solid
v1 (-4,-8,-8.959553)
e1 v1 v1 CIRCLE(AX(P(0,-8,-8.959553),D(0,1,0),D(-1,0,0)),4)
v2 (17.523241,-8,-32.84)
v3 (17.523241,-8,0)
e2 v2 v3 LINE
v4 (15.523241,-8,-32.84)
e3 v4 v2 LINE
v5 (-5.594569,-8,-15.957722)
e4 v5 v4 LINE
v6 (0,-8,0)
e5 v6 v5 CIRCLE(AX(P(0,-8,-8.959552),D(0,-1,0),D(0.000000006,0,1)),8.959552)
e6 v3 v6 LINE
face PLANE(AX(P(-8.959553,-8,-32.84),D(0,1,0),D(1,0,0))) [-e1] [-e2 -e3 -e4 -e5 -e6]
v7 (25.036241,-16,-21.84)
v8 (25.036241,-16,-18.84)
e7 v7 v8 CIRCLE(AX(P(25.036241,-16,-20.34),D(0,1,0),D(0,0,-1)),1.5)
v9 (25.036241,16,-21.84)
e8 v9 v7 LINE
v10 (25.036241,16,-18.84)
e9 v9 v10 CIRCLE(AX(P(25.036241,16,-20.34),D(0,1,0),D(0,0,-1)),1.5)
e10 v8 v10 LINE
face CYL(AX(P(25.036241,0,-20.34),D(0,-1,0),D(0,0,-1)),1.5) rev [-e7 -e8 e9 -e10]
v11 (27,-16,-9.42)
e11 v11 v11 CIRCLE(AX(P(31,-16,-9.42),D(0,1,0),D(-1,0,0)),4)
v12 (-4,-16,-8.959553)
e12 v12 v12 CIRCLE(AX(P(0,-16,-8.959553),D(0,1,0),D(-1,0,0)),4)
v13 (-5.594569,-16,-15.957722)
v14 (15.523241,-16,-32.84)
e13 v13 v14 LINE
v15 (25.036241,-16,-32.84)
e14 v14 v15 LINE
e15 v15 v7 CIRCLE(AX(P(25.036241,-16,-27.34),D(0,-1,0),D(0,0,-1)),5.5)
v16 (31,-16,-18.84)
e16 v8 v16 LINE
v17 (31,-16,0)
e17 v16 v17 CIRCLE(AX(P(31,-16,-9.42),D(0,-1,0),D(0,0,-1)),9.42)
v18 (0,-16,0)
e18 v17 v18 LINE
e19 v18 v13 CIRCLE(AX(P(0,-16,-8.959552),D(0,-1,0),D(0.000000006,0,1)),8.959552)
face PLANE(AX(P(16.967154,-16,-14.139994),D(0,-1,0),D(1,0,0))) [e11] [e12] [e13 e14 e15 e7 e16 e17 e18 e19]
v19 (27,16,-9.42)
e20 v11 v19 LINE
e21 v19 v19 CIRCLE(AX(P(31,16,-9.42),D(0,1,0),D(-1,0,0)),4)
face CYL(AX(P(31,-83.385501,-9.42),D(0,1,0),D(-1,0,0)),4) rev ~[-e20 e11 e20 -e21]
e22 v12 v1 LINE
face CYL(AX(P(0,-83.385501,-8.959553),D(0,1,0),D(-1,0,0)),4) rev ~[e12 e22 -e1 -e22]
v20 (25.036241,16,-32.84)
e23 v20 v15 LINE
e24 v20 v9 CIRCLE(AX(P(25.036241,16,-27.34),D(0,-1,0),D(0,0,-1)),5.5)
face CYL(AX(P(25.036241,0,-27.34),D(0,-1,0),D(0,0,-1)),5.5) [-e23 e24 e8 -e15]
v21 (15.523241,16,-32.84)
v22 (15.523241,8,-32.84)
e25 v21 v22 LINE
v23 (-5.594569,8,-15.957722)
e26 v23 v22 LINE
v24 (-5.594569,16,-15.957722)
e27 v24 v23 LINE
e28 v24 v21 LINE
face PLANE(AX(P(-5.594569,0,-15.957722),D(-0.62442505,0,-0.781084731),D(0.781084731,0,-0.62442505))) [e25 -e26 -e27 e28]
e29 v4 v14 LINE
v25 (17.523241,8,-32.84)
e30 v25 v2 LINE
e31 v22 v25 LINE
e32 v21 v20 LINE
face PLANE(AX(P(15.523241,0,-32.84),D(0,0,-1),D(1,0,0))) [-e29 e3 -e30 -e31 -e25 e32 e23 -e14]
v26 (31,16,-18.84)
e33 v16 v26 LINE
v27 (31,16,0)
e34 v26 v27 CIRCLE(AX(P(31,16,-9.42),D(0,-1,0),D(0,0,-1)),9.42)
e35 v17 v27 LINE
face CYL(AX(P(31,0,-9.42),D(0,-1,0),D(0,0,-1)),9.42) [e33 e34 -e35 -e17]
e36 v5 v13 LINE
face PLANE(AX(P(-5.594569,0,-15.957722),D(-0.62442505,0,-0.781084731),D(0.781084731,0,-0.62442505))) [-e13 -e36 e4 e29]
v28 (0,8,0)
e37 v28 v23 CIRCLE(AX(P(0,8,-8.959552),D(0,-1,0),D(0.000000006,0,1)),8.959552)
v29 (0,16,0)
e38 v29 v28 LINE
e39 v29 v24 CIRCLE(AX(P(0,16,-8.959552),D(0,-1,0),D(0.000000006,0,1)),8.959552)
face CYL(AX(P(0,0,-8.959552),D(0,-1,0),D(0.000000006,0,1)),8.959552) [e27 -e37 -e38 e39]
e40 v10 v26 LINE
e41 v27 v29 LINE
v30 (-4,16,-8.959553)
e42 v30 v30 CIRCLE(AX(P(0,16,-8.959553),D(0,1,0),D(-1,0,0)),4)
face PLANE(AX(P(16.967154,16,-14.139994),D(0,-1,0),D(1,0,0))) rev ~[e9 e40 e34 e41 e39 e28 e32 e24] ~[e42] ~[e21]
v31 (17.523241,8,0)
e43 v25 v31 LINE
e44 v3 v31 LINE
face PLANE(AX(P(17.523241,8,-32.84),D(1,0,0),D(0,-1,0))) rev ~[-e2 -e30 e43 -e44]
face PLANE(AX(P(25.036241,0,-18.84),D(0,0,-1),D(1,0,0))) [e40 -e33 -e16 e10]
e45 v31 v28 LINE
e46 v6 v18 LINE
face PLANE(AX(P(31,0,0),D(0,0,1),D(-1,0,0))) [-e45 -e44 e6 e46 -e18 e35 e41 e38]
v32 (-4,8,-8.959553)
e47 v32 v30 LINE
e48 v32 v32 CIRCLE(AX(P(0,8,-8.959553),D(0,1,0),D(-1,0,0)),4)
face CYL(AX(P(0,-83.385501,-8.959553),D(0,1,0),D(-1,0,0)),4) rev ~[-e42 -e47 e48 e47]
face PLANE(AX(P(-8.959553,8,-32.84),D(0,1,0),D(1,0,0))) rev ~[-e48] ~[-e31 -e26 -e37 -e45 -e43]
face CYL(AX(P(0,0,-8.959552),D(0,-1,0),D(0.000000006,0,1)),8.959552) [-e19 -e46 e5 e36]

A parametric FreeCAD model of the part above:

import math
import FreeCAD as App
import Part
import Sketcher
Q = App.Units.Quantity

doc = App.newDocument("Part")
body = doc.addObject("PartDesign::Body", "Body")

# Sketch on XZ plane
sketch1 = body.newObject("Sketcher::SketchObject", "Sketch")
sketch1.AttachmentSupport = (doc.getObject("XZ_Plane"), [""])
sketch1.MapMode = "FlatFace"
sketch1.addGeometry([
    Part.LineSegment(App.Vector(31, 0, 0), App.Vector(0, 0, 0)),  # 0
    Part.ArcOfCircle(Part.Circle(App.Vector(0, -8.959552, 0), App.Vector(0, 0, 1), 8.959552), math.radians(90), math.radians(231.36)),  # 1
    Part.LineSegment(App.Vector(-5.594569, -15.957722, 0), App.Vector(15.523241, -32.84, 0)),  # 2
    Part.LineSegment(App.Vector(15.523241, -32.84, 0), App.Vector(25.036241, -32.84, 0)),  # 3
    Part.ArcOfCircle(Part.Circle(App.Vector(25.036241, -27.34, 0), App.Vector(0, 0, 1), 5.5), math.radians(-90), math.radians(90)),  # 4
    Part.ArcOfCircle(Part.Circle(App.Vector(25.036241, -20.34, 0), App.Vector(0, 0, 1), 1.5), math.radians(90), math.radians(270)),  # 5
    Part.LineSegment(App.Vector(25.036241, -18.84, 0), App.Vector(31, -18.84, 0)),  # 6
    Part.ArcOfCircle(Part.Circle(App.Vector(31, -9.42, 0), App.Vector(0, 0, 1), 9.42), math.radians(-90), math.radians(90)),  # 7
], False)
sketch1.addConstraint([
    Sketcher.Constraint("Tangent", 0, 2, 1, 1),
    Sketcher.Constraint("Tangent", 1, 2, 2, 1),
    Sketcher.Constraint("Coincident", 2, 2, 3, 1),
    Sketcher.Constraint("Tangent", 3, 2, 4, 1),
    Sketcher.Constraint("Tangent", 4, 2, 5, 2),
    Sketcher.Constraint("Tangent", 5, 1, 6, 1),
    Sketcher.Constraint("Tangent", 6, 2, 7, 1),
    Sketcher.Constraint("Tangent", 7, 2, 0, 1),
    Sketcher.Constraint("Horizontal", 0),
    Sketcher.Constraint("Horizontal", 3),
    Sketcher.Constraint("Horizontal", 6),
    Sketcher.Constraint("Coincident", 0, 2, -1, 1),
    Sketcher.Constraint("Vertical", 4, 3, 5, 3),
    Sketcher.Constraint("Radius", 4, Q("5.5 mm")),
    Sketcher.Constraint("Radius", 5, Q("1.5 mm")),
    Sketcher.Constraint("DistanceX", 0, 2, 0, 1, Q("31 mm")),
    Sketcher.Constraint("Radius", 7, Q("9.42 mm")),
    Sketcher.Constraint("Angle", 2, Q("-38.64 deg")),
    Sketcher.Constraint("DistanceX", 3, 1, 3, 2, Q("9.513 mm")),
    Sketcher.Constraint("Radius", 1, Q("8.959552 mm")),
])
pad1 = body.newObject("PartDesign::Pad", "Pad")
pad1.Profile = sketch1
pad1.Length = 32
pad1.Midplane = True

# Sketch on XY plane
sketch2 = body.newObject("Sketcher::SketchObject", "Sketch001")
sketch2.AttachmentSupport = (doc.getObject("XY_Plane"), [""])
sketch2.MapMode = "FlatFace"
sketch2.AttachmentOffset = App.Placement(App.Vector(0, 0, -32.84), App.Rotation())
sketch2.addGeometry([
    Part.LineSegment(App.Vector(-8.959553, -8, 0), App.Vector(-8.959553, 8, 0)),
    Part.LineSegment(App.Vector(-8.959553, 8, 0), App.Vector(17.523241, 8, 0)),
    Part.LineSegment(App.Vector(17.523241, 8, 0), App.Vector(17.523241, -8, 0)),
    Part.LineSegment(App.Vector(17.523241, -8, 0), App.Vector(-8.959553, -8, 0)),
], False)
sketch2.addConstraint([
    Sketcher.Constraint("Coincident", 0, 2, 1, 1),
    Sketcher.Constraint("Coincident", 1, 2, 2, 1),
    Sketcher.Constraint("Coincident", 2, 2, 3, 1),
    Sketcher.Constraint("Coincident", 3, 2, 0, 1),
    Sketcher.Constraint("Vertical", 0),
    Sketcher.Constraint("Horizontal", 1),
    Sketcher.Constraint("Vertical", 2),
    Sketcher.Constraint("Horizontal", 3),
    Sketcher.Constraint("DistanceY", 0, 1, 0, 2, Q("16 mm")),
    Sketcher.Constraint("DistanceY", -1, 1, 0, 2, Q("8 mm")),
    Sketcher.Constraint("DistanceX", 1, 1, 1, 2, Q("26.482794 mm")),
    Sketcher.Constraint("DistanceX", -1, 1, 1, 2, Q("17.523241 mm")),
])
pocket1 = body.newObject("PartDesign::Pocket", "Pocket")
pocket1.Profile = sketch2
pocket1.Type = "ThroughAll"
pocket1.Reversed = True

# Sketch on XZ plane
sketch3 = body.newObject("Sketcher::SketchObject", "Sketch002")
sketch3.AttachmentSupport = (doc.getObject("XZ_Plane"), [""])
sketch3.MapMode = "FlatFace"
sketch3.AttachmentOffset = App.Placement(App.Vector(0, 0, 16), App.Rotation())
sketch3.addGeometry([
    Part.Circle(App.Vector(0, -8.959553, 0), App.Vector(0, 0, 1), 4),
    Part.Circle(App.Vector(31, -9.42, 0), App.Vector(0, 0, 1), 4),
], False)
sketch3.addConstraint([
    Sketcher.Constraint("Equal", 0, 1),
    Sketcher.Constraint("PointOnObject", 0, 3, -2),
    Sketcher.Constraint("Diameter", 0, Q("8 mm")),
    Sketcher.Constraint("DistanceX", -1, 1, 1, 3, Q("31 mm")),
    Sketcher.Constraint("DistanceY", 1, 3, -1, 1, Q("9.42 mm")),
    Sketcher.Constraint("DistanceY", 0, 3, -1, 1, Q("8.959553 mm")),
])
doc.recompute()
hole = body.newObject("PartDesign::Hole", "Hole")
hole.Profile = sketch3
hole.ThreadType = "None"
hole.Diameter = 8
hole.DepthType = "ThroughAll"

doc.recompute()
